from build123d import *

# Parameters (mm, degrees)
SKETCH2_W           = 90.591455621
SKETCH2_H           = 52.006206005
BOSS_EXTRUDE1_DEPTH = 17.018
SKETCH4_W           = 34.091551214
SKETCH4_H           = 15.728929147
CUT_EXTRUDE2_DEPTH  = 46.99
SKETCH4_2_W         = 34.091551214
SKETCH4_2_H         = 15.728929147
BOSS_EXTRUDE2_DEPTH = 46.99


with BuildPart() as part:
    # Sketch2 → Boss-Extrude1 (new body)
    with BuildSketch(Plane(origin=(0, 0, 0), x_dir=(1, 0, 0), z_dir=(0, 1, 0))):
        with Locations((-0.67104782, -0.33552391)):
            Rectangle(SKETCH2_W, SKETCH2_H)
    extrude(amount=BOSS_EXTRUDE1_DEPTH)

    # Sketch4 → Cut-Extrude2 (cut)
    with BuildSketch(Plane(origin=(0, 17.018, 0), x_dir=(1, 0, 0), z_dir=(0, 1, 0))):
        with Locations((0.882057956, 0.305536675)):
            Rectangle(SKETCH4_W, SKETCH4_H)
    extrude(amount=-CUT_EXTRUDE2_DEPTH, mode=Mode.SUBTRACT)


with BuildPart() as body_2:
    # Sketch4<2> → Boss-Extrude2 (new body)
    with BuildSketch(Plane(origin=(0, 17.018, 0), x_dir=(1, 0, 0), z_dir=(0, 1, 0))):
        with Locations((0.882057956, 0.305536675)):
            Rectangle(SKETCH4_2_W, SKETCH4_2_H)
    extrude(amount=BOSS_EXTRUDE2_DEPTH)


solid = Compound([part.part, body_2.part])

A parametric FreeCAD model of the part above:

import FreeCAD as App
import Part
import Sketcher

V = App.Vector
Q = App.Units.Quantity


def add_polygon(sketch, points):
    """Adds a closed chain of lines whose ends are joined by coincident constraints."""
    first, n = sketch.GeometryCount, len(points)
    for a, b in zip(points, points[1:] + points[:1]):
        sketch.addGeometry(Part.LineSegment(App.Vector(*a, 0), App.Vector(*b, 0)), False)
    for i in range(n):
        sketch.addConstraint(Sketcher.Constraint("Coincident", first + i, 2, first + (i + 1) % n, 1))

doc = App.newDocument("Part")
body = doc.addObject("PartDesign::Body", "Body")

# Sketch on XZ plane
sketch1 = body.newObject("Sketcher::SketchObject", "Sketch")
sketch1.AttachmentSupport = (doc.getObject("XZ_Plane"), [""])
sketch1.MapMode = "FlatFace"
add_polygon(sketch1, [(-46, -26), (-46, 26), (45, 26), (45, -26)])  # lines 0-3
sketch1.addConstraint([
    Sketcher.Constraint("Vertical", 0),
    Sketcher.Constraint("Horizontal", 1),
    Sketcher.Constraint("Vertical", 2),
    Sketcher.Constraint("Horizontal", 3),
    Sketcher.Constraint("DistanceX", 1, 1, 1, 2, Q("90.591456 mm")),
    Sketcher.Constraint("DistanceY", 0, 1, 0, 2, Q("52.006206 mm")),
    Sketcher.Constraint("DistanceX", -1, 1, 1, 2, Q("44.62468 mm")),
    Sketcher.Constraint("DistanceY", 2, 2, -1, 1, Q("25.667579 mm")),
])
pad1 = body.newObject("PartDesign::Pad", "Pad")
pad1.Profile = sketch1
pad1.Length = Q("0.67 in")
pad1.Reversed = True

# Sketch on XZ plane
sketch2 = body.newObject("Sketcher::SketchObject", "Sketch001")
sketch2.AttachmentSupport = (doc.getObject("XZ_Plane"), [""])
sketch2.MapMode = "FlatFace"
sketch2.AttachmentOffset = App.Placement(V(0, 0, -0.67 * 25.4), App.Rotation())
add_polygon(sketch2, [(-16, -8), (-16, 8), (18, 8), (18, -8)])  # lines 0-3
sketch2.addConstraint([
    Sketcher.Constraint("Vertical", 0),
    Sketcher.Constraint("Horizontal", 1),
    Sketcher.Constraint("Vertical", 2),
    Sketcher.Constraint("Horizontal", 3),
    Sketcher.Constraint("DistanceX", 1, 1, 1, 2, Q("34.091551 mm")),
    Sketcher.Constraint("DistanceY", 0, 1, 0, 2, Q("15.728929 mm")),
    Sketcher.Constraint("DistanceY", 2, 2, -1, 1, Q("8.170001 mm")),
    Sketcher.Constraint("DistanceX", 0, 2, -1, 1, Q("16.163718 mm")),
])
pocket1 = body.newObject("PartDesign::Pocket", "Pocket")
pocket1.Profile = sketch2
pocket1.Length = Q("1.85 in")
pocket1.Reversed = True
body2 = doc.addObject("PartDesign::Body", "Body001")

# Sketch on XZ plane
sketch3 = body2.newObject("Sketcher::SketchObject", "Sketch002")
sketch3.AttachmentSupport = (doc.getObject("XZ_Plane001"), [""])
sketch3.MapMode = "FlatFace"
sketch3.AttachmentOffset = App.Placement(V(0, 0, -0.67 * 25.4), App.Rotation())
add_polygon(sketch3, [(-16, -8), (-16, 8), (18, 8), (18, -8)])  # lines 0-3
sketch3.addConstraint([
    Sketcher.Constraint("Vertical", 0),
    Sketcher.Constraint("Horizontal", 1),
    Sketcher.Constraint("Vertical", 2),
    Sketcher.Constraint("Horizontal", 3),
    Sketcher.Constraint("DistanceX", 1, 1, 1, 2, Q("34.091551 mm")),
    Sketcher.Constraint("DistanceY", 0, 1, 0, 2, Q("15.728929 mm")),
    Sketcher.Constraint("DistanceY", 2, 2, -1, 1, Q("8.170001 mm")),
    Sketcher.Constraint("DistanceX", 0, 2, -1, 1, Q("16.163718 mm")),
])
pad2 = body2.newObject("PartDesign::Pad", "Pad001")
pad2.Profile = sketch3
pad2.Length = Q("1.85 in")
pad2.Reversed = True

doc.recompute()
